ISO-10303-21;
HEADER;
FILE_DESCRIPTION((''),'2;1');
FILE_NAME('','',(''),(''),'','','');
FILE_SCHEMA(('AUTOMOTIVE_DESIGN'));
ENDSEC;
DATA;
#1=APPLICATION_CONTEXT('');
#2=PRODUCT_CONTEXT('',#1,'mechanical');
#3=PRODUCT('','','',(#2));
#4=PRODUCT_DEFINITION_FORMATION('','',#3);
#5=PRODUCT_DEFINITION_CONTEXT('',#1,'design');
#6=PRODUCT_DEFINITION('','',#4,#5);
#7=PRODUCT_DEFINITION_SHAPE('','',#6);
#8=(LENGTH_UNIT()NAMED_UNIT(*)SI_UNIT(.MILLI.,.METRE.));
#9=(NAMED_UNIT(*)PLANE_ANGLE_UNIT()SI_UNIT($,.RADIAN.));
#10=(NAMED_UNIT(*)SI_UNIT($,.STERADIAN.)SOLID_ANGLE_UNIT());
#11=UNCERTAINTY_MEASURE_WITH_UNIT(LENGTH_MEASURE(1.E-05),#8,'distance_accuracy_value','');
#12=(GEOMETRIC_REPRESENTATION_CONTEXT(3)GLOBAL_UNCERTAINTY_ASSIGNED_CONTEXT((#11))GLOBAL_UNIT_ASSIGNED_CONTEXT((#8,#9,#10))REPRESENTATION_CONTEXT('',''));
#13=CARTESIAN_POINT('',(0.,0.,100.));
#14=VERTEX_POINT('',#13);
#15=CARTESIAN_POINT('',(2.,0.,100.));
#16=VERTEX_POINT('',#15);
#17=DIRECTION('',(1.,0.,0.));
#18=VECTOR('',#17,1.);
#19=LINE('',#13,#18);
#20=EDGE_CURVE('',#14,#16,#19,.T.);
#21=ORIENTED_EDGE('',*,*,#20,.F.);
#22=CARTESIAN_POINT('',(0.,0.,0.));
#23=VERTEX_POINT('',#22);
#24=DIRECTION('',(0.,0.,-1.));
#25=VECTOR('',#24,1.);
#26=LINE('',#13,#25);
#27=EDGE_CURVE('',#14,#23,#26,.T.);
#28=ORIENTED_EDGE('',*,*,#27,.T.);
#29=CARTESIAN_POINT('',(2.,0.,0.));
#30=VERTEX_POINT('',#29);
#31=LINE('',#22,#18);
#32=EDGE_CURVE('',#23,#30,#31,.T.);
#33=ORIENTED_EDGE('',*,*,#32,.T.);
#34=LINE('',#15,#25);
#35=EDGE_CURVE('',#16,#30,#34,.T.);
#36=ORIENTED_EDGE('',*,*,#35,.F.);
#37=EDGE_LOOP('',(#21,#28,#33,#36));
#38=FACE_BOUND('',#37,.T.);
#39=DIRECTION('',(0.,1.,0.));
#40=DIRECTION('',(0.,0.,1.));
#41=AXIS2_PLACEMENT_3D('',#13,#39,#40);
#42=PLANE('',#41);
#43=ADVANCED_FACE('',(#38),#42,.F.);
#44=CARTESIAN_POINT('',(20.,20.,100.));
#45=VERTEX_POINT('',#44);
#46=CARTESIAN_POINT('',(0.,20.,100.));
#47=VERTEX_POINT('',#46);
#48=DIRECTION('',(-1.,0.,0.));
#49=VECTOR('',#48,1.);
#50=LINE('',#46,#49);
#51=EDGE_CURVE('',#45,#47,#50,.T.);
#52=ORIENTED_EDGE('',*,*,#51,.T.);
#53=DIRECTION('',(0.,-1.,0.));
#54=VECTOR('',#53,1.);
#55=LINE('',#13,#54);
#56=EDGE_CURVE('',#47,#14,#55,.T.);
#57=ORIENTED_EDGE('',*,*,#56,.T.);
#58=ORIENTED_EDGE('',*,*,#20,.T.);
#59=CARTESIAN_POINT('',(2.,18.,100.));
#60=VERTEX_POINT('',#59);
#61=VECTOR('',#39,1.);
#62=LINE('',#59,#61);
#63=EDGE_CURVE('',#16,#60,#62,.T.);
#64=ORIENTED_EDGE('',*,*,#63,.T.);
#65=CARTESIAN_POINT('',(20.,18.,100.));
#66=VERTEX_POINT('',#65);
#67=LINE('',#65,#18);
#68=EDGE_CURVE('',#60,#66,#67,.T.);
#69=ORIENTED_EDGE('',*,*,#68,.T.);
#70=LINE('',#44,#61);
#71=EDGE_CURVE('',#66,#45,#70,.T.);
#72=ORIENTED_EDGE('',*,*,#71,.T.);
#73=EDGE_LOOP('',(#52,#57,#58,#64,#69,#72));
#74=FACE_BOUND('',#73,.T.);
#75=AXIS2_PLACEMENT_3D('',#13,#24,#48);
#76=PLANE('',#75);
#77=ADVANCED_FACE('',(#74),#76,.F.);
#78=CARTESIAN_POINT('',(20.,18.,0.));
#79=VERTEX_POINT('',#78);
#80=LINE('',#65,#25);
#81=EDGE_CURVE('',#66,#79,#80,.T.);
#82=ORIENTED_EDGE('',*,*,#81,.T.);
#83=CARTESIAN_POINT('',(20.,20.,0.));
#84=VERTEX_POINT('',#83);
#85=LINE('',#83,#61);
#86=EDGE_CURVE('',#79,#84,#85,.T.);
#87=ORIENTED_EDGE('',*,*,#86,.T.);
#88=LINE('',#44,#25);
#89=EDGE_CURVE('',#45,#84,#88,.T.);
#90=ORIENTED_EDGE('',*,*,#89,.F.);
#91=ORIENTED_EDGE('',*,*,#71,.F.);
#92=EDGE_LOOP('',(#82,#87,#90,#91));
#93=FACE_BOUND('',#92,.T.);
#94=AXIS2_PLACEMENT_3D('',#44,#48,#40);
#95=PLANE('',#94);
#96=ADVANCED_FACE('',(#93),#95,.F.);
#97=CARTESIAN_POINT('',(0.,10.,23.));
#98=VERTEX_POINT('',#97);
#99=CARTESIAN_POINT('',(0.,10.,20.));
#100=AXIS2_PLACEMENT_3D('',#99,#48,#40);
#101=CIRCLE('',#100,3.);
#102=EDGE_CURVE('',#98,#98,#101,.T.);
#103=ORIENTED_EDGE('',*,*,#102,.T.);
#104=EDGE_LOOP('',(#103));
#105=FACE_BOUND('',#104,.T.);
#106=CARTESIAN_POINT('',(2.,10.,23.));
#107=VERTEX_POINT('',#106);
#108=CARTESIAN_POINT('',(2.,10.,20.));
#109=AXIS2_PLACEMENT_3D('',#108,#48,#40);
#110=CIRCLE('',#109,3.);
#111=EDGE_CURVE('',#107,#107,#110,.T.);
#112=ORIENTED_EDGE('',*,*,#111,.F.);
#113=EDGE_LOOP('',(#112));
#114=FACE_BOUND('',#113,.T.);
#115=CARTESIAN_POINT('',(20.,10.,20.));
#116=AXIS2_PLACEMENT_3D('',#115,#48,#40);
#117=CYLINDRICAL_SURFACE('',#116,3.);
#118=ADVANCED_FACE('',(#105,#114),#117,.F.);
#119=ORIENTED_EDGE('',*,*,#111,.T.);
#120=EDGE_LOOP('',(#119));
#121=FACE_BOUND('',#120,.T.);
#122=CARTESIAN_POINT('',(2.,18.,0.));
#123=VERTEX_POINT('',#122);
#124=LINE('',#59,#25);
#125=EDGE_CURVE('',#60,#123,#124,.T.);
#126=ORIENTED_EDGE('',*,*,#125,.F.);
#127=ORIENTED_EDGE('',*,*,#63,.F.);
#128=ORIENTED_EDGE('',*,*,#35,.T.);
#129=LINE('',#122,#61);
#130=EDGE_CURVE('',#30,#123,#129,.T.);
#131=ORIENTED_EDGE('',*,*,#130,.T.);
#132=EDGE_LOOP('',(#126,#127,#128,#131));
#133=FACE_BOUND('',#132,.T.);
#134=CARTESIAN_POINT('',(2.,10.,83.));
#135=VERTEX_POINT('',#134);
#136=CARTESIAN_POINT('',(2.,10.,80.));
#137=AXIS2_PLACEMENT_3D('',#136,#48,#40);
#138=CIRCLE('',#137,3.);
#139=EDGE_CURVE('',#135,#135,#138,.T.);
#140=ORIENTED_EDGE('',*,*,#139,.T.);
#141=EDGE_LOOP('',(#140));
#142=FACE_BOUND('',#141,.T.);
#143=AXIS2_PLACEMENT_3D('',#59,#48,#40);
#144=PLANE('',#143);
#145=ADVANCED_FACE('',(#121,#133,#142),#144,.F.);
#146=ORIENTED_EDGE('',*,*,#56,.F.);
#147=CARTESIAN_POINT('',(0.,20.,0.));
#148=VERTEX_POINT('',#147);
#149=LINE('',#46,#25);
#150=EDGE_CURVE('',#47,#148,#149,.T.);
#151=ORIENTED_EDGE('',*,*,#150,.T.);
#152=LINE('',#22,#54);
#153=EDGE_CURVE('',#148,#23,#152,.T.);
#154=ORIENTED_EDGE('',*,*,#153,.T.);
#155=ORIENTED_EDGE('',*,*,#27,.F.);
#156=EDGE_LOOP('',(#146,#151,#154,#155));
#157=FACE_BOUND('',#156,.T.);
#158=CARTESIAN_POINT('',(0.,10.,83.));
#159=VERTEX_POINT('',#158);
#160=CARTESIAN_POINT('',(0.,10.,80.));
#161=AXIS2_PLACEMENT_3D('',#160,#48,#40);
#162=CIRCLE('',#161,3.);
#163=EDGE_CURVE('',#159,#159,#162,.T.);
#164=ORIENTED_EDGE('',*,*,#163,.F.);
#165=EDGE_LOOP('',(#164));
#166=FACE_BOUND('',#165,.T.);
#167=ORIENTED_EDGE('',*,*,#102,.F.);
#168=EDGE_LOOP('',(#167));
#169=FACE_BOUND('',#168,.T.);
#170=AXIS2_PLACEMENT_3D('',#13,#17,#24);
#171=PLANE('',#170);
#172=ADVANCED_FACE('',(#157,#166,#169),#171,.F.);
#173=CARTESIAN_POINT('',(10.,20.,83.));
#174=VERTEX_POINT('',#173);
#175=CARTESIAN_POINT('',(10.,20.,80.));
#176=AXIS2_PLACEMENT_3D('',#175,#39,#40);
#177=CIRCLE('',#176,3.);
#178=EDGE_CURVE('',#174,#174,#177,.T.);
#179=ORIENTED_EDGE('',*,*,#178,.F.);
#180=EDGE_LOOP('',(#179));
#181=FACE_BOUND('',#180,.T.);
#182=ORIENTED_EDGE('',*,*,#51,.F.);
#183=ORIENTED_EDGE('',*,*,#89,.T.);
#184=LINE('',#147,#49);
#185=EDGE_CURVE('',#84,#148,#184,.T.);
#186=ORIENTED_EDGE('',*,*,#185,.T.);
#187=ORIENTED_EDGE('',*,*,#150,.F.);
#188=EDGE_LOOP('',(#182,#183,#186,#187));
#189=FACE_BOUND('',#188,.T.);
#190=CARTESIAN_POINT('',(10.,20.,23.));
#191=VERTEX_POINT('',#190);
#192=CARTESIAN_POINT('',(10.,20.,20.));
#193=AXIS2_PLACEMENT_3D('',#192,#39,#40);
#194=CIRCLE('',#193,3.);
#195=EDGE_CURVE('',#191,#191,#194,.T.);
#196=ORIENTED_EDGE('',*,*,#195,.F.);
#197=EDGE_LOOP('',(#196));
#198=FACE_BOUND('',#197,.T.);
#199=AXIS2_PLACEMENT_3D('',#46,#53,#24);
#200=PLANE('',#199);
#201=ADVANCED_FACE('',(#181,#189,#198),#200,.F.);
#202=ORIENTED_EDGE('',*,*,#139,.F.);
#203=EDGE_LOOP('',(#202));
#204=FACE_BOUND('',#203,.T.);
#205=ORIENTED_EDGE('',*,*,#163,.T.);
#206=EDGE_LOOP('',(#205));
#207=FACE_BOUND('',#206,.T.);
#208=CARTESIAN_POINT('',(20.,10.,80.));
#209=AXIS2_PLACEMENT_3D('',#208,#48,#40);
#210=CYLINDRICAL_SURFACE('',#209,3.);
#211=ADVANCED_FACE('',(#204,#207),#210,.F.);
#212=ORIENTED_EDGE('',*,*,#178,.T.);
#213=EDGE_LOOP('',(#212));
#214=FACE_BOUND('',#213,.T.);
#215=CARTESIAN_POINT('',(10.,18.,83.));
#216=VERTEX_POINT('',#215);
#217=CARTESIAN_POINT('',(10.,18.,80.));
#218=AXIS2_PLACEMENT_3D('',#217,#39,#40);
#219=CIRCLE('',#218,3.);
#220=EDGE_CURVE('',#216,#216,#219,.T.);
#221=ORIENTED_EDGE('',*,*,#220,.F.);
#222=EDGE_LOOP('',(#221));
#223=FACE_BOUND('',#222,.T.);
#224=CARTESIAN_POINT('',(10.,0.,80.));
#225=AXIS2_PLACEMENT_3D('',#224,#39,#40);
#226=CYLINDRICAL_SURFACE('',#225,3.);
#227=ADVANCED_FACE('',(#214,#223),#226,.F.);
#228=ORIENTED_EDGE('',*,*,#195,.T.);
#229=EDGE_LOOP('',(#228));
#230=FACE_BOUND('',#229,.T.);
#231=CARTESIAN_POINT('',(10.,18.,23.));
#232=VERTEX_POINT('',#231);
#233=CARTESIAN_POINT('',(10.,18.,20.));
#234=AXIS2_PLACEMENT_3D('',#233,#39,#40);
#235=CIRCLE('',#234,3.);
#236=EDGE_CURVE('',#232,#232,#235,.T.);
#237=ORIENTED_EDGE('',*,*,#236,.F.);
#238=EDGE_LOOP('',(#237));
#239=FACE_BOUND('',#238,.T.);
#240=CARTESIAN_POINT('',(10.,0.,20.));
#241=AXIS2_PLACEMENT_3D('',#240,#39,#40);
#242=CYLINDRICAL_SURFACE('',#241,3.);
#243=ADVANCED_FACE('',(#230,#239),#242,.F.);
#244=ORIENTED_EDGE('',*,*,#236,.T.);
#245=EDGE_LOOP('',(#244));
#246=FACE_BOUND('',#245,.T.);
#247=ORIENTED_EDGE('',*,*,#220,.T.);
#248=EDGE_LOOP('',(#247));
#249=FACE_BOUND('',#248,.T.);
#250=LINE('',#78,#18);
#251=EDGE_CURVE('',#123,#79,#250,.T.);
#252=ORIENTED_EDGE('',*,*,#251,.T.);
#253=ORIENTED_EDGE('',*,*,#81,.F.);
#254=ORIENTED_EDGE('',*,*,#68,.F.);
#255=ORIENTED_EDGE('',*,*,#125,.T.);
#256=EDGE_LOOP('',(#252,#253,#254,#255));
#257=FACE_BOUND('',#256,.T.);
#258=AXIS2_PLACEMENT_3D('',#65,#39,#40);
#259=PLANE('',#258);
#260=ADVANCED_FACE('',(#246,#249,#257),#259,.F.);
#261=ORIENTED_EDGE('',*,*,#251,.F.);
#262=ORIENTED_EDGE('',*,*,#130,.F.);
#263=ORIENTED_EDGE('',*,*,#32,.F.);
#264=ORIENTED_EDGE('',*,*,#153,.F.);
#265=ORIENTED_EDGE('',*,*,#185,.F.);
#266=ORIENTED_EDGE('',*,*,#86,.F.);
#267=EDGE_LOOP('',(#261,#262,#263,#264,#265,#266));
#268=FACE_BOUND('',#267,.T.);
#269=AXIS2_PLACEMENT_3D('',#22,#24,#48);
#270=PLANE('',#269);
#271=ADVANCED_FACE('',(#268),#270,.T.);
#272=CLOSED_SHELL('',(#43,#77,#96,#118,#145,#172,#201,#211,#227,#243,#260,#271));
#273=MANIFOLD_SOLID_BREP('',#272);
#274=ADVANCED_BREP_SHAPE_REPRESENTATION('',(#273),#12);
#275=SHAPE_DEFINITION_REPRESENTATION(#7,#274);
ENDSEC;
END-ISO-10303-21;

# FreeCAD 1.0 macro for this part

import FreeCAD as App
import Part
import Sketcher
Q = App.Units.Quantity


def add_polygon(sketch, points):
    """Adds a closed chain of lines whose ends are joined by coincident constraints."""
    first, n = sketch.GeometryCount, len(points)
    for a, b in zip(points, points[1:] + points[:1]):
        sketch.addGeometry(Part.LineSegment(App.Vector(*a, 0), App.Vector(*b, 0)), False)
    for i in range(n):
        sketch.addConstraint(Sketcher.Constraint("Coincident", first + i, 2, first + (i + 1) % n, 1))

doc = App.newDocument("Part")
body = doc.addObject("PartDesign::Body", "Body")

sketch1 = body.newObject("Sketcher::SketchObject", "Sketch")
sketch1.AttachmentSupport = (doc.getObject("XY_Plane"), [""])
sketch1.MapMode = "FlatFace"
add_polygon(sketch1, [(0, 20), (0, 0), (2, 0), (2, 18), (20, 18), (20, 20)])
sketch1.addConstraint([
    Sketcher.Constraint("Vertical", 0),
    Sketcher.Constraint("Horizontal", 1),
    Sketcher.Constraint("Vertical", 2),
    Sketcher.Constraint("Horizontal", 3),
    Sketcher.Constraint("Vertical", 4),
    Sketcher.Constraint("Horizontal", 5),
    Sketcher.Constraint("Coincident", 0, 2, -1, 1),
    Sketcher.Constraint("Equal", 5, 0),
    Sketcher.Constraint("Equal", 3, 2),
    Sketcher.Constraint("DistanceX", 1, 1, 1, 2, Q("2 mm")),
    Sketcher.Constraint("DistanceX", 3, 1, 3, 2, Q("18 mm")),
])
pad1 = body.newObject("PartDesign::Pad", "Pad")
pad1.Profile = sketch1
pad1.Length = 100

sketch2 = body.newObject("Sketcher::SketchObject", "Sketch001")
sketch2.AttachmentSupport = (doc.getObject("YZ_Plane"), [""])
sketch2.MapMode = "FlatFace"
sketch2.addGeometry(Part.Circle(App.Vector(10, 80, 0), App.Vector(0, 0, 1), 3), False)
sketch2.addConstraint([
    Sketcher.Constraint("Diameter", 0, Q("6 mm")),
    Sketcher.Constraint("DistanceX", -1, 1, 0, 3, Q("10 mm")),
    Sketcher.Constraint("DistanceY", -1, 1, 0, 3, Q("80 mm")),
])
pocket1 = body.newObject("PartDesign::Pocket", "Pocket")
pocket1.Profile = sketch2
pocket1.Length = 20
pocket1.Reversed = True

sketch3 = body.newObject("Sketcher::SketchObject", "Sketch002")
sketch3.AttachmentSupport = (doc.getObject("YZ_Plane"), [""])
sketch3.MapMode = "FlatFace"
sketch3.addGeometry(Part.Circle(App.Vector(10, 20, 0), App.Vector(0, 0, 1), 3), False)
sketch3.addConstraint([
    Sketcher.Constraint("Diameter", 0, Q("6 mm")),
    Sketcher.Constraint("DistanceX", -1, 1, 0, 3, Q("10 mm")),
    Sketcher.Constraint("DistanceY", -1, 1, 0, 3, Q("20 mm")),
])
pocket2 = body.newObject("PartDesign::Pocket", "Pocket001")
pocket2.Profile = sketch3
pocket2.Length = 20
pocket2.Reversed = True

sketch4 = body.newObject("Sketcher::SketchObject", "Sketch003")
sketch4.AttachmentSupport = (doc.getObject("XZ_Plane"), [""])
sketch4.MapMode = "FlatFace"
sketch4.AttachmentOffset = App.Placement(App.Vector(0, 0, -20), App.Rotation())
sketch4.addGeometry(Part.Circle(App.Vector(10, 80, 0), App.Vector(0, 0, 1), 3), False)
sketch4.addConstraint([
    Sketcher.Constraint("Diameter", 0, Q("6 mm")),
    Sketcher.Constraint("DistanceX", -1, 1, 0, 3, Q("10 mm")),
    Sketcher.Constraint("DistanceY", -1, 1, 0, 3, Q("80 mm")),
])
pocket3 = body.newObject("PartDesign::Pocket", "Pocket002")
pocket3.Profile = sketch4
pocket3.Length = 20
pocket3.Reversed = True

sketch5 = body.newObject("Sketcher::SketchObject", "Sketch004")
sketch5.AttachmentSupport = (doc.getObject("XZ_Plane"), [""])
sketch5.MapMode = "FlatFace"
sketch5.AttachmentOffset = App.Placement(App.Vector(0, 0, -20), App.Rotation())
sketch5.addGeometry(Part.Circle(App.Vector(10, 20, 0), App.Vector(0, 0, 1), 3), False)
sketch5.addConstraint([
    Sketcher.Constraint("Diameter", 0, Q("6 mm")),
    Sketcher.Constraint("DistanceX", -1, 1, 0, 3, Q("10 mm")),
    Sketcher.Constraint("DistanceY", -1, 1, 0, 3, Q("20 mm")),
])
pocket4 = body.newObject("PartDesign::Pocket", "Pocket003")
pocket4.Profile = sketch5
pocket4.Length = 20
pocket4.Reversed = True

doc.recompute()
